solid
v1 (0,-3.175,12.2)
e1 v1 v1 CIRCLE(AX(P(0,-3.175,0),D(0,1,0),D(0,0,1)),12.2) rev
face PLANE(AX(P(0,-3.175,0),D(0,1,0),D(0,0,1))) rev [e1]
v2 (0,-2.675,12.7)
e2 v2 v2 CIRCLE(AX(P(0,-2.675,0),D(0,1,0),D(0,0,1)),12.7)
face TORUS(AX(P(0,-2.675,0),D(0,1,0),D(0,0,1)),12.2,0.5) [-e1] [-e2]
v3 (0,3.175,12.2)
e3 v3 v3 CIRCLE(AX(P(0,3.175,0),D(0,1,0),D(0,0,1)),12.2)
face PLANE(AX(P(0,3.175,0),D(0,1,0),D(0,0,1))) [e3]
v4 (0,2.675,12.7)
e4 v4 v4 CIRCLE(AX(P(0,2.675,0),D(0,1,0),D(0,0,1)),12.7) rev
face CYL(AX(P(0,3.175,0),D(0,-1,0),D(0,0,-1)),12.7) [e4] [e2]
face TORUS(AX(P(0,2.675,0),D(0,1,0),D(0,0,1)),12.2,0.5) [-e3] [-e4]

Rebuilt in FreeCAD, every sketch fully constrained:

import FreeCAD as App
import Part
import Sketcher
Q = App.Units.Quantity


def edges_at(feature, points):
    """Names of the edges that pass closest to the given points."""
    edges = feature.Shape.Edges
    near = lambda p: min(range(len(edges)), key=lambda i: edges[i].distToShape(Part.Vertex(*p))[0])
    return sorted({f"Edge{near(p) + 1}" for p in points})

doc = App.newDocument("Part")
params = doc.addObject("Spreadsheet::Sheet", "Params")
for row, (alias, value) in enumerate([
    ("sketch1_diameter", "1 in"),
    ("pad1_length", "0.25 in"),
    ("fillet_radius", "0.5 mm"),
], start=1):
    params.set(f"A{row}", alias)
    params.set(f"B{row}", "=" + value)
    params.setAlias(f"B{row}", alias)

body = doc.addObject("PartDesign::Body", "Body")

sketch1 = body.newObject("Sketcher::SketchObject", "Sketch")
sketch1.AttachmentSupport = (doc.getObject("XZ_Plane"), [""])
sketch1.MapMode = "FlatFace"
sketch1.addGeometry(Part.Circle(App.Vector(0, 0, 0), App.Vector(0, 0, 1), 12.7), False)
sketch1.addConstraint(Sketcher.Constraint("Coincident", 0, 3, -1, 1))
sketch1.addConstraint(Sketcher.Constraint("Diameter", 0, Q("1 in")))
sketch1.setExpression("Constraints[1]", "Params.sketch1_diameter")
pad1 = body.newObject("PartDesign::Pad", "Pad")
pad1.Profile = sketch1
pad1.setExpression("Length", "Params.pad1_length")
pad1.Midplane = True
doc.recompute()

fillet = body.newObject("PartDesign::Fillet", "Fillet")
fillet.Base = (pad1, edges_at(pad1, [(-12.7, -3.175, 0), (-12.7, 3.175, 0)]))
fillet.setExpression("Radius", "Params.fillet_radius")

doc.recompute()
